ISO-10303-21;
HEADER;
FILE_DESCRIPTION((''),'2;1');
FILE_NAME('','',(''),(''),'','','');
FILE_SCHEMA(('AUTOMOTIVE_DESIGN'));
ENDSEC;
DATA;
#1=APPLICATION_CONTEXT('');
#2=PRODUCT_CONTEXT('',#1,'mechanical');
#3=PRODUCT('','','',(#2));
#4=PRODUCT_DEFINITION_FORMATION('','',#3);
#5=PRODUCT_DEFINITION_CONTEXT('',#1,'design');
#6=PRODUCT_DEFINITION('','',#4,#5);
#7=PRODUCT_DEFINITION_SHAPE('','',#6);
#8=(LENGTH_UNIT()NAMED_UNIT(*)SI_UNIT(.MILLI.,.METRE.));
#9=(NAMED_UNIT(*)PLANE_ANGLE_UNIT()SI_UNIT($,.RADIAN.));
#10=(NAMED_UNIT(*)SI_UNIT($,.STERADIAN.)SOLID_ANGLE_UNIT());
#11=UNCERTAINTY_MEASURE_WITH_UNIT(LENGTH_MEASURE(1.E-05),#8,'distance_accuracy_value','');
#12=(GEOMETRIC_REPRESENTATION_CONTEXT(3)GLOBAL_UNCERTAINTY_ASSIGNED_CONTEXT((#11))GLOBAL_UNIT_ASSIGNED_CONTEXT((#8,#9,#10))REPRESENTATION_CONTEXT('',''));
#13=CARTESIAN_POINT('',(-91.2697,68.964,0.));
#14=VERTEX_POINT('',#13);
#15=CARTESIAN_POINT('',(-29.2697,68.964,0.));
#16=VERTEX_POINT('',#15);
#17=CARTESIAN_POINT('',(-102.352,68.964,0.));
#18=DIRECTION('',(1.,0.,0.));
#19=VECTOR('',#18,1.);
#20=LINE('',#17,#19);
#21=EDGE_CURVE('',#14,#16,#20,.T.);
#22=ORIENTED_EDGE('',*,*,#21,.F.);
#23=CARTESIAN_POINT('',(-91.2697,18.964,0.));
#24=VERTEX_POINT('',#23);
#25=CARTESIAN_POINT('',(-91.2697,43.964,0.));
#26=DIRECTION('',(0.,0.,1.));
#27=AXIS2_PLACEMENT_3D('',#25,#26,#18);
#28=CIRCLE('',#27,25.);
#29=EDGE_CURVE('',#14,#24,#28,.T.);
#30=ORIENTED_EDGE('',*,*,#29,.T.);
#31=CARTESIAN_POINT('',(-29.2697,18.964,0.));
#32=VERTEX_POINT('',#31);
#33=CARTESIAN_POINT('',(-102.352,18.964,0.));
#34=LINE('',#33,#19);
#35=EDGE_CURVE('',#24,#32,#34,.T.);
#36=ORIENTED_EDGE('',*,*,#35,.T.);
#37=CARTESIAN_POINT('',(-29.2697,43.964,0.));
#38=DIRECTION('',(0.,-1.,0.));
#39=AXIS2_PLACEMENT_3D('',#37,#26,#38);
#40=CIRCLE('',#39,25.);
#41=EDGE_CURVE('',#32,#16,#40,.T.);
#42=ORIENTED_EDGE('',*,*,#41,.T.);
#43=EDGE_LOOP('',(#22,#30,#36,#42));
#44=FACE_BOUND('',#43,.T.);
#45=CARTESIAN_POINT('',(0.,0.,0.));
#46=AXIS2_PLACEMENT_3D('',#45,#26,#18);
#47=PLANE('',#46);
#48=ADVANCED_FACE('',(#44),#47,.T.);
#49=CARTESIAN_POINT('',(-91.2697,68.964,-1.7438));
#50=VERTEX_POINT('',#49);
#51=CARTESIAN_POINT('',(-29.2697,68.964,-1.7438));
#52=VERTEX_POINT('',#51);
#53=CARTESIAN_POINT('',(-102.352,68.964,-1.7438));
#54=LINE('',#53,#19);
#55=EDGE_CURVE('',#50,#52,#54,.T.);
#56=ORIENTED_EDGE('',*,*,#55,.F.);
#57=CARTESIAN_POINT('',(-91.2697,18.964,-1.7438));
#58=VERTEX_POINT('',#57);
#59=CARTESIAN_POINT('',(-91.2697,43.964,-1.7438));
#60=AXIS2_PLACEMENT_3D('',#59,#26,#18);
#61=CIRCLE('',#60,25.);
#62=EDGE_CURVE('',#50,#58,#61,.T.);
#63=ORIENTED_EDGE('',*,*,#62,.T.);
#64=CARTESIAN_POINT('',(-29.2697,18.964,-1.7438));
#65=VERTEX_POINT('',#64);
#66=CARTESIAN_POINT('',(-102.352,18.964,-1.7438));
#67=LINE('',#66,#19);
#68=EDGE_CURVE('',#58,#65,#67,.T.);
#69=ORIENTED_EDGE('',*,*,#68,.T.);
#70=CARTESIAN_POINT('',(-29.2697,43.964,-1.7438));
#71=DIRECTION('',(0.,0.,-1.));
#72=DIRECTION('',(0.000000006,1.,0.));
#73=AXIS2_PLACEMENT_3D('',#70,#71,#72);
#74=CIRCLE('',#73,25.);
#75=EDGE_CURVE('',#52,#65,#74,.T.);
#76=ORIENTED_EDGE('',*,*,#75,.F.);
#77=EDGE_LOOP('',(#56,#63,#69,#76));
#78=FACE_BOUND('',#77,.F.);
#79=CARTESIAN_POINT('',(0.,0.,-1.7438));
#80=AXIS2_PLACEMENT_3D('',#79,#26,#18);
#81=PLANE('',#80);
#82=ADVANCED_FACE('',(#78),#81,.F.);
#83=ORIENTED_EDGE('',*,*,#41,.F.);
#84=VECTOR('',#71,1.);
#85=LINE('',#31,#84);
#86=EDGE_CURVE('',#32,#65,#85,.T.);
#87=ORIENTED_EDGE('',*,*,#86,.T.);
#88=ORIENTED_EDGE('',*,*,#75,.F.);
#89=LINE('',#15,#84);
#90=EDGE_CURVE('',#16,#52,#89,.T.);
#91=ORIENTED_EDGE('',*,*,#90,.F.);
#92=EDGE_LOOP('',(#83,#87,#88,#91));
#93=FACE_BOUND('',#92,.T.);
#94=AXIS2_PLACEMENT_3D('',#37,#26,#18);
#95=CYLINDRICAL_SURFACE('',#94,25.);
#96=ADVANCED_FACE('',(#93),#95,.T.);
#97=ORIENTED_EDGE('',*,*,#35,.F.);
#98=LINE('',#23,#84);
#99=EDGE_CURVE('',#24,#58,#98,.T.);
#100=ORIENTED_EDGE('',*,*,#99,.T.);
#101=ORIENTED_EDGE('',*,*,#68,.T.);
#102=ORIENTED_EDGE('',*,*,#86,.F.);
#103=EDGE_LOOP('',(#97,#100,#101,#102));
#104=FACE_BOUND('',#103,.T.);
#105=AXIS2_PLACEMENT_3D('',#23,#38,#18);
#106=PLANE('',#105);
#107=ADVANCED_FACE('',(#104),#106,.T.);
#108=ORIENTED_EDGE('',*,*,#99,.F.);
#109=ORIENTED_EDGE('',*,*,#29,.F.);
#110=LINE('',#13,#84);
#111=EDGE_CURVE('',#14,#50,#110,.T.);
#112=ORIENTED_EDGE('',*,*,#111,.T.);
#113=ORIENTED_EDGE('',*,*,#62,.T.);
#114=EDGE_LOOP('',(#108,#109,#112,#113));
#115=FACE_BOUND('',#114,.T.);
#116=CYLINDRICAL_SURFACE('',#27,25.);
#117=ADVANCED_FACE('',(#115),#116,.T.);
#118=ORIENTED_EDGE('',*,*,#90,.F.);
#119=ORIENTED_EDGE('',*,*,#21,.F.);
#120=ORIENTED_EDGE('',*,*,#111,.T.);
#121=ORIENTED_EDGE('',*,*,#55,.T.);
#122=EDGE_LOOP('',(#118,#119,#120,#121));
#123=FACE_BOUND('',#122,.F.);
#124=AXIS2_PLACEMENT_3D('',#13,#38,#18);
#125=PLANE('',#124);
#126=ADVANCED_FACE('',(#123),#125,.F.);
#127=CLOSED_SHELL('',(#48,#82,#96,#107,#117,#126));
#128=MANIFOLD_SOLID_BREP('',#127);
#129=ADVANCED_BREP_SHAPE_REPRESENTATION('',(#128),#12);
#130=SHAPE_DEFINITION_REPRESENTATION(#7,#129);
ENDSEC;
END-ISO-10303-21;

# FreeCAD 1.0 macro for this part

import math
import FreeCAD as App
import Part
import Sketcher

V = App.Vector
Q = App.Units.Quantity

doc = App.newDocument("Part")
body = doc.addObject("PartDesign::Body", "Body")

sketch1 = body.newObject("Sketcher::SketchObject", "Sketch")
sketch1.AttachmentSupport = (doc.getObject("XY_Plane"), [""])
sketch1.MapMode = "FlatFace"
sketch1.addGeometry([
    Part.ArcOfCircle(Part.Circle(V(-91, 44, 0), V(0, 0, 1), 25), math.radians(90), math.radians(270)),
    Part.LineSegment(V(-91, 19, 0), V(-29, 19, 0)),
    Part.ArcOfCircle(Part.Circle(V(-29, 44, 0), V(0, 0, 1), 25), math.radians(-90), math.radians(90)),
    Part.LineSegment(V(-29, 69, 0), V(-91, 69, 0)),
], False)
sketch1.addConstraint([
    Sketcher.Constraint("Tangent", 0, 2, 1, 1),
    Sketcher.Constraint("Tangent", 1, 2, 2, 1),
    Sketcher.Constraint("Tangent", 2, 2, 3, 1),
    Sketcher.Constraint("Tangent", 3, 2, 0, 1),
    Sketcher.Constraint("Horizontal", 1),
    Sketcher.Constraint("Horizontal", 3),
    Sketcher.Constraint("Radius", 0, Q("25 mm")),
    Sketcher.Constraint("DistanceX", 1, 1, 1, 2, Q("62 mm")),
    Sketcher.Constraint("DistanceY", -1, 1, 0, 3, Q("43.964 mm")),
    Sketcher.Constraint("DistanceX", 0, 3, -1, 1, Q("91.2697 mm")),
])
pad1 = body.newObject("PartDesign::Pad", "Pad")
pad1.Profile = sketch1
pad1.Length = 1.7438
pad1.Reversed = True

doc.recompute()
